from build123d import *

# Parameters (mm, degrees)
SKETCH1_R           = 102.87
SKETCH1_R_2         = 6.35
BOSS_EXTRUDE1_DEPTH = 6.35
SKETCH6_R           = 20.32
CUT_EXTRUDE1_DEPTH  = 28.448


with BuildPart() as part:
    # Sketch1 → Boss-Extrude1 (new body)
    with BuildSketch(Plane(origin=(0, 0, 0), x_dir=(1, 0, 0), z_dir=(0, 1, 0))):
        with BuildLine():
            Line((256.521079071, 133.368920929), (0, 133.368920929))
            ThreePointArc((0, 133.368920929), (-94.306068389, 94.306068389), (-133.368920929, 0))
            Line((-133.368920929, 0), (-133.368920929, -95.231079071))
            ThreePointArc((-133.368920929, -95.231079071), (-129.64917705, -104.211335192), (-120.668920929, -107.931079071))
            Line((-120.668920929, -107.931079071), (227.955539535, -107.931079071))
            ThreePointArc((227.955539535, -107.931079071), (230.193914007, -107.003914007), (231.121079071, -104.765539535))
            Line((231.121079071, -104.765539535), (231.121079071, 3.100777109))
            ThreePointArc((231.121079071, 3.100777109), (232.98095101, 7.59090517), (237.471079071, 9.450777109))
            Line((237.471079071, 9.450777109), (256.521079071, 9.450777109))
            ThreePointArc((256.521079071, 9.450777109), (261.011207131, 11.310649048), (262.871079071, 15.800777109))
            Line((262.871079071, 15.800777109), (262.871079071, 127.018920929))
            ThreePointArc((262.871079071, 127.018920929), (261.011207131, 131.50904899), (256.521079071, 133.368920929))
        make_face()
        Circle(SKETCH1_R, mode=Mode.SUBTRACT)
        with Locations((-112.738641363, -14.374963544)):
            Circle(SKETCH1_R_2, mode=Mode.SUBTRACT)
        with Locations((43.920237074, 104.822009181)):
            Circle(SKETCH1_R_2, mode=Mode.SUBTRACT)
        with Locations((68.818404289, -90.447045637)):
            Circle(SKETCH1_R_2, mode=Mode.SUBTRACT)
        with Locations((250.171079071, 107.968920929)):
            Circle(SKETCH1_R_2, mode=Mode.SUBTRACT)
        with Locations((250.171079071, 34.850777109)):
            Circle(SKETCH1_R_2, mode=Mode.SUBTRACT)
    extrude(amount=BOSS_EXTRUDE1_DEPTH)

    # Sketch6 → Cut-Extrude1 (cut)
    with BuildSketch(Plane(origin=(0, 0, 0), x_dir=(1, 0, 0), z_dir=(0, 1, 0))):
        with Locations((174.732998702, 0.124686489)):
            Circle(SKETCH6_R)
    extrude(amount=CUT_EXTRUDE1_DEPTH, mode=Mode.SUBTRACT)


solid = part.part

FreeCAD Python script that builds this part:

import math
import FreeCAD as App
import Part
import Sketcher
Q = App.Units.Quantity

doc = App.newDocument("Part")
params = doc.addObject("Spreadsheet::Sheet", "Params")
for row, (alias, value) in enumerate([
    ("sketch1_diameter", "0.5 in"),
    ("sketch1_diameter2", "8.1 in"),
    ("sketch1_radius", "0.5 in"),
    ("pad1_length", "0.25 in"),
    ("sketch2_diameter", "1.6 in"),
    ("pocket1_length", "1.12 in"),
], start=1):
    params.set(f"A{row}", alias)
    params.set(f"B{row}", "=" + value)
    params.setAlias(f"B{row}", alias)

body = doc.addObject("PartDesign::Body", "Body")

# Sketch on XZ plane
sketch1 = doc.addObject("Sketcher::SketchObject", "Sketch")
body.addObject(sketch1)
sketch1.AttachmentSupport = (doc.XZ_Plane, [""])
sketch1.MapMode = "FlatFace"
sketch1.addGeometry(Part.LineSegment(App.Vector(256.5, -133.4, 0), App.Vector(0, -133.4, 0)), False)
sketch1.addGeometry(Part.ArcOfCircle(Part.Circle(App.Vector(0, 0, 0), App.Vector(0, 0, 1), 133.4), math.radians(180), math.radians(270)), False)
sketch1.addGeometry(Part.LineSegment(App.Vector(-133.4, 0, 0), App.Vector(-133.4, 95.2, 0)), False)
sketch1.addGeometry(Part.ArcOfCircle(Part.Circle(App.Vector(-120.7, 95.2, 0), App.Vector(0, 0, 1), 12.7), math.radians(90), math.radians(180)), False)
sketch1.addGeometry(Part.LineSegment(App.Vector(-120.7, 107.9, 0), App.Vector(228, 107.9, 0)), False)
sketch1.addGeometry(Part.ArcOfCircle(Part.Circle(App.Vector(228, 104.8, 0), App.Vector(0, 0, 1), 3.2), math.radians(0), math.radians(90)), False)
sketch1.addGeometry(Part.LineSegment(App.Vector(231.1, 104.8, 0), App.Vector(231.1, -3.1, 0)), False)
sketch1.addGeometry(Part.ArcOfCircle(Part.Circle(App.Vector(237.5, -3.1, 0), App.Vector(0, 0, 1), 6.3), math.radians(180), math.radians(270)), False)
sketch1.addGeometry(Part.LineSegment(App.Vector(237.5, -9.5, 0), App.Vector(256.5, -9.5, 0)), False)
sketch1.addGeometry(Part.ArcOfCircle(Part.Circle(App.Vector(256.5, -15.8, 0), App.Vector(0, 0, 1), 6.3), math.radians(0), math.radians(90)), False)
sketch1.addGeometry(Part.LineSegment(App.Vector(262.9, -15.8, 0), App.Vector(262.9, -127, 0)), False)
sketch1.addGeometry(Part.ArcOfCircle(Part.Circle(App.Vector(256.5, -127, 0), App.Vector(0, 0, 1), 6.3), math.radians(-90), math.radians(0)), False)
sketch1.addGeometry(Part.Circle(App.Vector(-112.7, 14.4, 0), App.Vector(0, 0, 1), 6.3), False)
sketch1.addGeometry(Part.Circle(App.Vector(0, 0, 0), App.Vector(0, 0, 1), 102.9), False)
sketch1.addGeometry(Part.Circle(App.Vector(68.8, 90.4, 0), App.Vector(0, 0, 1), 6.3), False)
sketch1.addGeometry(Part.Circle(App.Vector(43.9, -104.8, 0), App.Vector(0, 0, 1), 6.3), False)
sketch1.addGeometry(Part.Circle(App.Vector(250.2, -34.9, 0), App.Vector(0, 0, 1), 6.3), False)
sketch1.addGeometry(Part.Circle(App.Vector(250.2, -108, 0), App.Vector(0, 0, 1), 6.3), False)
sketch1.addConstraint(Sketcher.Constraint("Tangent", 0, 2, 1, 2))
sketch1.addConstraint(Sketcher.Constraint("Tangent", 1, 1, 2, 1))
sketch1.addConstraint(Sketcher.Constraint("Tangent", 2, 2, 3, 2))
sketch1.addConstraint(Sketcher.Constraint("Tangent", 3, 1, 4, 1))
sketch1.addConstraint(Sketcher.Constraint("Tangent", 4, 2, 5, 2))
sketch1.addConstraint(Sketcher.Constraint("Tangent", 5, 1, 6, 1))
sketch1.addConstraint(Sketcher.Constraint("Tangent", 6, 2, 7, 1))
sketch1.addConstraint(Sketcher.Constraint("Tangent", 7, 2, 8, 1))
sketch1.addConstraint(Sketcher.Constraint("Tangent", 8, 2, 9, 2))
sketch1.addConstraint(Sketcher.Constraint("Tangent", 9, 1, 10, 1))
sketch1.addConstraint(Sketcher.Constraint("Tangent", 10, 2, 11, 2))
sketch1.addConstraint(Sketcher.Constraint("Tangent", 11, 1, 0, 1))
sketch1.addConstraint(Sketcher.Constraint("Horizontal", 0))
sketch1.addConstraint(Sketcher.Constraint("Vertical", 2))
sketch1.addConstraint(Sketcher.Constraint("Horizontal", 4))
sketch1.addConstraint(Sketcher.Constraint("Vertical", 6))
sketch1.addConstraint(Sketcher.Constraint("Horizontal", 8))
sketch1.addConstraint(Sketcher.Constraint("Vertical", 10))
sketch1.addConstraint(Sketcher.Constraint("Coincident", 1, 3, -1, 1))
sketch1.addConstraint(Sketcher.Constraint("Coincident", 13, 3, -1, 1))
sketch1.addConstraint(Sketcher.Constraint("Equal", 7, 9))
sketch1.addConstraint(Sketcher.Constraint("Equal", 9, 11))
sketch1.addConstraint(Sketcher.Constraint("Equal", 11, 12))
sketch1.addConstraint(Sketcher.Constraint("Equal", 12, 14))
sketch1.addConstraint(Sketcher.Constraint("Equal", 14, 15))
sketch1.addConstraint(Sketcher.Constraint("Equal", 15, 16))
sketch1.addConstraint(Sketcher.Constraint("Equal", 16, 17))
sketch1.addConstraint(Sketcher.Constraint("Vertical", 16, 3, 17, 3))
sketch1.addConstraint(Sketcher.Constraint("Diameter", 12, Q("0.5 in")))
sketch1.addConstraint(Sketcher.Constraint("Diameter", 13, Q("8.1 in")))
sketch1.addConstraint(Sketcher.Constraint("Radius", 3, Q("0.5 in")))
sketch1.addConstraint(Sketcher.Constraint("DistanceX", 5, 1, 9, 3, Q("1 in")))
sketch1.addConstraint(Sketcher.Constraint("DistanceY", 16, 3, 7, 2, Q("1 in")))
sketch1.addConstraint(Sketcher.Constraint("DistanceY", 11, 1, 17, 3, Q("1 in")))
sketch1.addConstraint(Sketcher.Constraint("DistanceX", 3, 3, 7, 3, Q("14.1 in")))
sketch1.addConstraint(Sketcher.Constraint("DistanceX", 7, 3, 16, 3, Q("0.5 in")))
sketch1.addConstraint(Sketcher.Constraint("DistanceY", 11, 3, 3, 3, Q("8.75 in")))
sketch1.addConstraint(Sketcher.Constraint("Radius", 1, 133.368921))
sketch1.addConstraint(Sketcher.Constraint("Radius", 5, 3.16554))
sketch1.addConstraint(Sketcher.Constraint("DistanceY", 6, 2, 6, 1, 107.866317))
sketch1.addConstraint(Sketcher.Constraint("DistanceX", 12, 3, -1, 1, 112.738641))
sketch1.addConstraint(Sketcher.Constraint("DistanceY", 15, 3, -1, 1, 104.822009))
sketch1.addConstraint(Sketcher.Constraint("DistanceY", 7, 3, 12, 3, 17.475741))
sketch1.addConstraint(Sketcher.Constraint("DistanceX", 12, 3, 15, 3, 156.658878))
sketch1.addConstraint(Sketcher.Constraint("DistanceX", -1, 1, 14, 3, 68.818404))
sketch1.addConstraint(Sketcher.Constraint("DistanceY", -1, 1, 14, 3, 90.447046))
sketch1.setExpression("Constraints[28]", "Params.sketch1_diameter")
sketch1.setExpression("Constraints[29]", "Params.sketch1_diameter2")
sketch1.setExpression("Constraints[30]", "Params.sketch1_radius")
pad1 = doc.addObject("PartDesign::Pad", "Pad")
body.addObject(pad1)
pad1.Profile = sketch1
pad1.setExpression("Length", "Params.pad1_length")
pad1.Reversed = True

# Sketch on XZ plane
sketch2 = doc.addObject("Sketcher::SketchObject", "Sketch001")
body.addObject(sketch2)
sketch2.AttachmentSupport = (doc.XZ_Plane, [""])
sketch2.MapMode = "FlatFace"
sketch2.addGeometry(Part.Circle(App.Vector(175, 0, 0), App.Vector(0, 0, 1), 20), False)
sketch2.addConstraint(Sketcher.Constraint("Diameter", 0, Q("1.6 in")))
sketch2.addConstraint(Sketcher.Constraint("DistanceX", -1, 1, 0, 3, 174.732999))
sketch2.addConstraint(Sketcher.Constraint("DistanceY", 0, 3, -1, 1, 0.124686))
sketch2.setExpression("Constraints[0]", "Params.sketch2_diameter")
pocket1 = doc.addObject("PartDesign::Pocket", "Pocket")
body.addObject(pocket1)
pocket1.Profile = sketch2
pocket1.setExpression("Length", "Params.pocket1_length")

doc.recompute()
